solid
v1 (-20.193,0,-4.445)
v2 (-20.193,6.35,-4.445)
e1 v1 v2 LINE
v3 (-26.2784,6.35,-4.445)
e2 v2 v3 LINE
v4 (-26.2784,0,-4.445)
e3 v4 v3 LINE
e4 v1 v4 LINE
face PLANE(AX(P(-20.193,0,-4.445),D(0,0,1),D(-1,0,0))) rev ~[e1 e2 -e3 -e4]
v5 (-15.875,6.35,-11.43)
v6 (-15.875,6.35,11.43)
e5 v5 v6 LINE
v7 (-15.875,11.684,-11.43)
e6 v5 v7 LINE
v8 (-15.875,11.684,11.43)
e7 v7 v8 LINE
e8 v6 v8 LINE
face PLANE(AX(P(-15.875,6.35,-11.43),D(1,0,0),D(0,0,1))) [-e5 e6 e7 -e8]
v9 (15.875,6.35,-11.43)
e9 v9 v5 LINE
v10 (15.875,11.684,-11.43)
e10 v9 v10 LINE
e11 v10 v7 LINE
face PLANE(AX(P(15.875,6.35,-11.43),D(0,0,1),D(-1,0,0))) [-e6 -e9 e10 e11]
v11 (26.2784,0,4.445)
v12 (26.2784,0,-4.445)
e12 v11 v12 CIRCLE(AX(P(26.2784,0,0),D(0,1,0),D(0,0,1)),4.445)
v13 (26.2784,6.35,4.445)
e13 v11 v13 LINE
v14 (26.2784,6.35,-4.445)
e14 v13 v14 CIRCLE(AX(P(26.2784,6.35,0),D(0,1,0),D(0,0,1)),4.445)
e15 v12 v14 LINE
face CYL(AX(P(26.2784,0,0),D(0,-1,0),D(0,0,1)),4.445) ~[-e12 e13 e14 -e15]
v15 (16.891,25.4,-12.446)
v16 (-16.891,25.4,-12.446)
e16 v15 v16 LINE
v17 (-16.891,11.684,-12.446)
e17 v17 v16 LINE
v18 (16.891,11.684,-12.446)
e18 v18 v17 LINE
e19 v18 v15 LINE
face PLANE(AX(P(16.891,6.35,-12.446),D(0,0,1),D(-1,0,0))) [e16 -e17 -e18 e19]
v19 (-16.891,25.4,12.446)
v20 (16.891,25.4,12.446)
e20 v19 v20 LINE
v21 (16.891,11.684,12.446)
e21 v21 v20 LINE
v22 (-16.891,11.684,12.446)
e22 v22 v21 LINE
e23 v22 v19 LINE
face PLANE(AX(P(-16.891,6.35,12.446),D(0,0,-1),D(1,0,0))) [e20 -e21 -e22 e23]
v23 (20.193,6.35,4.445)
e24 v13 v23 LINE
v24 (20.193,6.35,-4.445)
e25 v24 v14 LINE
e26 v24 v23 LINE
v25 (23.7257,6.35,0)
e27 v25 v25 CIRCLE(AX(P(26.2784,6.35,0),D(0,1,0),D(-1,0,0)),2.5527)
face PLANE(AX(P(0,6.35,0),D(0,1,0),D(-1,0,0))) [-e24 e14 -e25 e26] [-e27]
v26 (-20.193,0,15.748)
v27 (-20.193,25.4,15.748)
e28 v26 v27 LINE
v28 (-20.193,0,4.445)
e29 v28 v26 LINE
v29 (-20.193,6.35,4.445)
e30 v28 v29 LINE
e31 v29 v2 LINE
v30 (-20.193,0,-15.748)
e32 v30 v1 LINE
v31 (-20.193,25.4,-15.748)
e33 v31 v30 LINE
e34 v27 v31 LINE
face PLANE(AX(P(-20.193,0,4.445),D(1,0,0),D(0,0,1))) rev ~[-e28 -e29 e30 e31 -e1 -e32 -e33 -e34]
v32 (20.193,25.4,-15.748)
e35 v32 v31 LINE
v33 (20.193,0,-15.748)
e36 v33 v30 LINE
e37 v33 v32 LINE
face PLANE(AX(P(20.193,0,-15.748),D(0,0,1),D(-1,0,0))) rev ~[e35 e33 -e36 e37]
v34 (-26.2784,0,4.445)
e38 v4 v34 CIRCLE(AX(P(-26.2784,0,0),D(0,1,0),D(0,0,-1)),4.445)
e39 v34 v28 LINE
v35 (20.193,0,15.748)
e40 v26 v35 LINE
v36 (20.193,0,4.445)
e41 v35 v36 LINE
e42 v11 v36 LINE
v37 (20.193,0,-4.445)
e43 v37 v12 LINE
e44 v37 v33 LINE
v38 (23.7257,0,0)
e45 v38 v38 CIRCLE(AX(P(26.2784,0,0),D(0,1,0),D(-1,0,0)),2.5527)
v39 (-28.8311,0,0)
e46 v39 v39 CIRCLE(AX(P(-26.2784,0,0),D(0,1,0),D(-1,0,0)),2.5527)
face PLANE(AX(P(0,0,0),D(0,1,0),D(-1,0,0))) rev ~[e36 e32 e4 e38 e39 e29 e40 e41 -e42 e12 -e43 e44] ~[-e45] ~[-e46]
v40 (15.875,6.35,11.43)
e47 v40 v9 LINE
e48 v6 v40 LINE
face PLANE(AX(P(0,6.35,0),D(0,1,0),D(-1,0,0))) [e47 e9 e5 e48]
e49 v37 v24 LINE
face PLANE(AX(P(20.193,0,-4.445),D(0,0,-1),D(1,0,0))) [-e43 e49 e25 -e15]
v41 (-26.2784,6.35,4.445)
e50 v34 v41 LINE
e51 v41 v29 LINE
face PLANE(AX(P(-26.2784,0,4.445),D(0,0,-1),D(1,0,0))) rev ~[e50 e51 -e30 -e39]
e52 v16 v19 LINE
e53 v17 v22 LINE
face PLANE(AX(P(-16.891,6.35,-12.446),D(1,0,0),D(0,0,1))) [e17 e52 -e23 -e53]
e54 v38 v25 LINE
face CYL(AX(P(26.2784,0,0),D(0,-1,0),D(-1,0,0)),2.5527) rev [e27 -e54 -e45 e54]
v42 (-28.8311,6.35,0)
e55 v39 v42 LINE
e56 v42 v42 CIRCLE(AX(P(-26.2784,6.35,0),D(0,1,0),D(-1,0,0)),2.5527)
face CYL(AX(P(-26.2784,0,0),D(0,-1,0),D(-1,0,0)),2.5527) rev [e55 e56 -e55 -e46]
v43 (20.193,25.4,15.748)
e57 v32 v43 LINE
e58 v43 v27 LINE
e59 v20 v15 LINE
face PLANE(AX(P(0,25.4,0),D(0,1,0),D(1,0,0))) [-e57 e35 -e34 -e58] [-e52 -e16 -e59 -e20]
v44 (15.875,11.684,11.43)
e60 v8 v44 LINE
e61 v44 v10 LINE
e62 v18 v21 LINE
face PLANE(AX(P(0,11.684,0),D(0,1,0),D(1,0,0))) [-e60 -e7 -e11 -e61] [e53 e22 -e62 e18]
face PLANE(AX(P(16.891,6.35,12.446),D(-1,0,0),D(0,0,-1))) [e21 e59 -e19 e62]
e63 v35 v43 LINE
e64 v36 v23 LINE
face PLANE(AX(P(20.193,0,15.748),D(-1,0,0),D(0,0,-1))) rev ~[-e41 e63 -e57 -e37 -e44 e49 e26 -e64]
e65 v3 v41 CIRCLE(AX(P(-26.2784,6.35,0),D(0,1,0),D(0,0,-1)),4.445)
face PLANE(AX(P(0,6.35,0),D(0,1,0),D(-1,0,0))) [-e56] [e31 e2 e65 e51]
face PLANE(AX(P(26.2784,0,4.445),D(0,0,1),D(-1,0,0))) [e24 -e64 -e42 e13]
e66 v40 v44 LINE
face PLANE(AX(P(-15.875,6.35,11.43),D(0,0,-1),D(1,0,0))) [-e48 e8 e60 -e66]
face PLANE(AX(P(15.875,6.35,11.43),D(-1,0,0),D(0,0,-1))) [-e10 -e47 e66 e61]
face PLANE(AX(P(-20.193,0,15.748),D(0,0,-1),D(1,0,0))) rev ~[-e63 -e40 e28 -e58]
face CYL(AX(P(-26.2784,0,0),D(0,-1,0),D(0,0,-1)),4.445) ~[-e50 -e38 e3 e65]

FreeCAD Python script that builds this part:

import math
import FreeCAD as App
import Part
import Sketcher
from FreeCAD import Vector
Q = App.Units.Quantity

doc = App.newDocument("Part")
body = doc.addObject("PartDesign::Body", "Body")

sketch1 = body.newObject("Sketcher::SketchObject", "Sketch")
sketch1.AttachmentSupport = (doc.getObject("XZ_Plane"), [""])
sketch1.MapMode = "FlatFace"
sketch1.addGeometry(Part.LineSegment(Vector(-20.2, 4.4, 0), Vector(-20.2, 15.7, 0)), False)
sketch1.addGeometry(Part.LineSegment(Vector(-20.2, 15.7, 0), Vector(20.2, 15.7, 0)), False)
sketch1.addGeometry(Part.LineSegment(Vector(20.2, 15.7, 0), Vector(20.2, 4.4, 0)), False)
sketch1.addGeometry(Part.LineSegment(Vector(20.2, 4.4, 0), Vector(26.3, 4.4, 0)), False)
sketch1.addGeometry(Part.ArcOfCircle(Part.Circle(Vector(26.3, 0, 0), Vector(0, 0, 1), 4.4), math.radians(-90), math.radians(90)), False)
sketch1.addGeometry(Part.LineSegment(Vector(26.3, -4.4, 0), Vector(20.2, -4.4, 0)), False)
sketch1.addGeometry(Part.LineSegment(Vector(20.2, -4.4, 0), Vector(20.2, -15.7, 0)), False)
sketch1.addGeometry(Part.LineSegment(Vector(20.2, -15.7, 0), Vector(-20.2, -15.7, 0)), False)
sketch1.addGeometry(Part.LineSegment(Vector(-20.2, -15.7, 0), Vector(-20.2, -4.4, 0)), False)
sketch1.addGeometry(Part.LineSegment(Vector(-20.2, -4.4, 0), Vector(-26.3, -4.4, 0)), False)
sketch1.addGeometry(Part.ArcOfCircle(Part.Circle(Vector(-26.3, 0, 0), Vector(0, 0, 1), 4.4), math.radians(90), math.radians(270)), False)
sketch1.addGeometry(Part.LineSegment(Vector(-26.3, 4.4, 0), Vector(-20.2, 4.4, 0)), False)
sketch1.addGeometry(Part.Circle(Vector(26.3, 0, 0), Vector(0, 0, 1), 2.6), False)
sketch1.addGeometry(Part.Circle(Vector(-26.3, 0, 0), Vector(0, 0, 1), 2.6), False)
sketch1.addConstraint(Sketcher.Constraint("Coincident", 0, 2, 1, 1))
sketch1.addConstraint(Sketcher.Constraint("Coincident", 1, 2, 2, 1))
sketch1.addConstraint(Sketcher.Constraint("Coincident", 2, 2, 3, 1))
sketch1.addConstraint(Sketcher.Constraint("Tangent", 3, 2, 4, 2))
sketch1.addConstraint(Sketcher.Constraint("Tangent", 4, 1, 5, 1))
sketch1.addConstraint(Sketcher.Constraint("Coincident", 5, 2, 6, 1))
sketch1.addConstraint(Sketcher.Constraint("Coincident", 6, 2, 7, 1))
sketch1.addConstraint(Sketcher.Constraint("Coincident", 7, 2, 8, 1))
sketch1.addConstraint(Sketcher.Constraint("Coincident", 8, 2, 9, 1))
sketch1.addConstraint(Sketcher.Constraint("Tangent", 9, 2, 10, 2))
sketch1.addConstraint(Sketcher.Constraint("Tangent", 10, 1, 11, 1))
sketch1.addConstraint(Sketcher.Constraint("Coincident", 11, 2, 0, 1))
sketch1.addConstraint(Sketcher.Constraint("Vertical", 0))
sketch1.addConstraint(Sketcher.Constraint("Horizontal", 1))
sketch1.addConstraint(Sketcher.Constraint("Vertical", 2))
sketch1.addConstraint(Sketcher.Constraint("Horizontal", 3))
sketch1.addConstraint(Sketcher.Constraint("Horizontal", 5))
sketch1.addConstraint(Sketcher.Constraint("Vertical", 6))
sketch1.addConstraint(Sketcher.Constraint("Horizontal", 7))
sketch1.addConstraint(Sketcher.Constraint("Vertical", 8))
sketch1.addConstraint(Sketcher.Constraint("Horizontal", 9))
sketch1.addConstraint(Sketcher.Constraint("Horizontal", 11))
sketch1.addConstraint(Sketcher.Constraint("Coincident", 12, 3, 4, 3))
sketch1.addConstraint(Sketcher.Constraint("Coincident", 13, 3, 10, 3))
sketch1.addConstraint(Sketcher.Constraint("Equal", 4, 10))
sketch1.addConstraint(Sketcher.Constraint("Equal", 12, 13))
sketch1.addConstraint(Sketcher.Constraint("Symmetric", 4, 3, 10, 3, -1, 1))
sketch1.addConstraint(Sketcher.Constraint("Symmetric", 0, 2, 6, 2, -1, 1))
sketch1.addConstraint(Sketcher.Constraint("Symmetric", 5, 2, 8, 2, -2))
sketch1.addConstraint(Sketcher.Constraint("Vertical", 2, 2, 5, 2))
sketch1.addConstraint(Sketcher.Constraint("Diameter", 12, Q("0.201 in")))
sketch1.addConstraint(Sketcher.Constraint("Radius", 4, Q("0.175 in")))
sketch1.addConstraint(Sketcher.Constraint("DistanceX", 1, 1, 1, 2, Q("1.59 in")))
sketch1.addConstraint(Sketcher.Constraint("DistanceY", 7, 2, 0, 2, Q("1.24 in")))
sketch1.addConstraint(Sketcher.Constraint("DistanceX", 3, 1, 3, 2, Q("6.0854 mm")))
pad1 = body.newObject("PartDesign::Pad", "Pad")
pad1.Profile = sketch1
pad1.Length = Q("0.25 in")
pad1.Reversed = True

sketch2 = body.newObject("Sketcher::SketchObject", "Sketch001")
sketch2.AttachmentSupport = (doc.getObject("XZ_Plane"), [""])
sketch2.MapMode = "FlatFace"
sketch2.AttachmentOffset = App.Placement(Vector(0, 0, -0.25 * 25.4), App.Rotation())
sketch2.addGeometry(Part.LineSegment(Vector(20, 16, 0), Vector(20, -16, 0)), False)
sketch2.addGeometry(Part.LineSegment(Vector(20, -16, 0), Vector(-20, -16, 0)), False)
sketch2.addGeometry(Part.LineSegment(Vector(-20, -16, 0), Vector(-20, 16, 0)), False)
sketch2.addGeometry(Part.LineSegment(Vector(-20, 16, 0), Vector(20, 16, 0)), False)
sketch2.addGeometry(Part.LineSegment(Vector(17, 12, 0), Vector(-17, 12, 0)), False)
sketch2.addGeometry(Part.LineSegment(Vector(-17, 12, 0), Vector(-17, -12, 0)), False)
sketch2.addGeometry(Part.LineSegment(Vector(-17, -12, 0), Vector(17, -12, 0)), False)
sketch2.addGeometry(Part.LineSegment(Vector(17, -12, 0), Vector(17, 12, 0)), False)
sketch2.addConstraint(Sketcher.Constraint("Coincident", 0, 2, 1, 1))
sketch2.addConstraint(Sketcher.Constraint("Coincident", 1, 2, 2, 1))
sketch2.addConstraint(Sketcher.Constraint("Coincident", 2, 2, 3, 1))
sketch2.addConstraint(Sketcher.Constraint("Coincident", 3, 2, 0, 1))
sketch2.addConstraint(Sketcher.Constraint("Coincident", 4, 2, 5, 1))
sketch2.addConstraint(Sketcher.Constraint("Coincident", 5, 2, 6, 1))
sketch2.addConstraint(Sketcher.Constraint("Coincident", 6, 2, 7, 1))
sketch2.addConstraint(Sketcher.Constraint("Coincident", 7, 2, 4, 1))
sketch2.addConstraint(Sketcher.Constraint("Vertical", 0))
sketch2.addConstraint(Sketcher.Constraint("Horizontal", 1))
sketch2.addConstraint(Sketcher.Constraint("Vertical", 2))
sketch2.addConstraint(Sketcher.Constraint("Horizontal", 3))
sketch2.addConstraint(Sketcher.Constraint("Horizontal", 4))
sketch2.addConstraint(Sketcher.Constraint("Vertical", 5))
sketch2.addConstraint(Sketcher.Constraint("Horizontal", 6))
sketch2.addConstraint(Sketcher.Constraint("Vertical", 7))
sketch2.addConstraint(Sketcher.Constraint("Symmetric", 0, 2, 2, 2, -1, 1))
sketch2.addConstraint(Sketcher.Constraint("Symmetric", 4, 2, 6, 2, -1, 1))
sketch2.addConstraint(Sketcher.Constraint("DistanceX", 2, 2, 4, 2, Q("0.13 in")))
sketch2.addConstraint(Sketcher.Constraint("DistanceY", 4, 2, 2, 2, Q("0.13 in")))
sketch2.addConstraint(Sketcher.Constraint("DistanceX", 1, 2, 1, 1, Q("1.59 in")))
sketch2.addConstraint(Sketcher.Constraint("DistanceY", 0, 2, 0, 1, Q("1.24 in")))
pad2 = body.newObject("PartDesign::Pad", "Pad001")
pad2.Profile = sketch2
pad2.Length = Q("0.75 in")
pad2.Reversed = True

sketch3 = body.newObject("Sketcher::SketchObject", "Sketch002")
sketch3.AttachmentSupport = (doc.getObject("XZ_Plane"), [""])
sketch3.MapMode = "FlatFace"
sketch3.AttachmentOffset = App.Placement(Vector(0, 0, -0.25 * 25.4), App.Rotation())
sketch3.addGeometry(Part.LineSegment(Vector(17, -12, 0), Vector(-17, -12, 0)), False)
sketch3.addGeometry(Part.LineSegment(Vector(-17, -12, 0), Vector(-17, 12, 0)), False)
sketch3.addGeometry(Part.LineSegment(Vector(-17, 12, 0), Vector(17, 12, 0)), False)
sketch3.addGeometry(Part.LineSegment(Vector(17, 12, 0), Vector(17, -12, 0)), False)
sketch3.addGeometry(Part.LineSegment(Vector(16, 11, 0), Vector(-16, 11, 0)), False)
sketch3.addGeometry(Part.LineSegment(Vector(-16, 11, 0), Vector(-16, -11, 0)), False)
sketch3.addGeometry(Part.LineSegment(Vector(-16, -11, 0), Vector(16, -11, 0)), False)
sketch3.addGeometry(Part.LineSegment(Vector(16, -11, 0), Vector(16, 11, 0)), False)
sketch3.addConstraint(Sketcher.Constraint("Coincident", 0, 2, 1, 1))
sketch3.addConstraint(Sketcher.Constraint("Coincident", 1, 2, 2, 1))
sketch3.addConstraint(Sketcher.Constraint("Coincident", 2, 2, 3, 1))
sketch3.addConstraint(Sketcher.Constraint("Coincident", 3, 2, 0, 1))
sketch3.addConstraint(Sketcher.Constraint("Coincident", 4, 2, 5, 1))
sketch3.addConstraint(Sketcher.Constraint("Coincident", 5, 2, 6, 1))
sketch3.addConstraint(Sketcher.Constraint("Coincident", 6, 2, 7, 1))
sketch3.addConstraint(Sketcher.Constraint("Coincident", 7, 2, 4, 1))
sketch3.addConstraint(Sketcher.Constraint("Horizontal", 0))
sketch3.addConstraint(Sketcher.Constraint("Vertical", 1))
sketch3.addConstraint(Sketcher.Constraint("Horizontal", 2))
sketch3.addConstraint(Sketcher.Constraint("Vertical", 3))
sketch3.addConstraint(Sketcher.Constraint("Horizontal", 4))
sketch3.addConstraint(Sketcher.Constraint("Vertical", 5))
sketch3.addConstraint(Sketcher.Constraint("Horizontal", 6))
sketch3.addConstraint(Sketcher.Constraint("Vertical", 7))
sketch3.addConstraint(Sketcher.Constraint("Symmetric", 0, 2, 2, 2, -1, 1))
sketch3.addConstraint(Sketcher.Constraint("Symmetric", 4, 2, 6, 2, -1, 1))
sketch3.addConstraint(Sketcher.Constraint("DistanceX", 1, 2, 4, 2, Q("0.04 in")))
sketch3.addConstraint(Sketcher.Constraint("DistanceY", 4, 2, 1, 2, Q("0.04 in")))
sketch3.addConstraint(Sketcher.Constraint("DistanceY", 5, 2, 5, 1, Q("0.9 in")))
sketch3.addConstraint(Sketcher.Constraint("DistanceX", 0, 2, 0, 1, Q("1.33 in")))
pad3 = body.newObject("PartDesign::Pad", "Pad002")
pad3.Profile = sketch3
pad3.Length = Q("0.21 in")
pad3.Reversed = True

doc.recompute()
